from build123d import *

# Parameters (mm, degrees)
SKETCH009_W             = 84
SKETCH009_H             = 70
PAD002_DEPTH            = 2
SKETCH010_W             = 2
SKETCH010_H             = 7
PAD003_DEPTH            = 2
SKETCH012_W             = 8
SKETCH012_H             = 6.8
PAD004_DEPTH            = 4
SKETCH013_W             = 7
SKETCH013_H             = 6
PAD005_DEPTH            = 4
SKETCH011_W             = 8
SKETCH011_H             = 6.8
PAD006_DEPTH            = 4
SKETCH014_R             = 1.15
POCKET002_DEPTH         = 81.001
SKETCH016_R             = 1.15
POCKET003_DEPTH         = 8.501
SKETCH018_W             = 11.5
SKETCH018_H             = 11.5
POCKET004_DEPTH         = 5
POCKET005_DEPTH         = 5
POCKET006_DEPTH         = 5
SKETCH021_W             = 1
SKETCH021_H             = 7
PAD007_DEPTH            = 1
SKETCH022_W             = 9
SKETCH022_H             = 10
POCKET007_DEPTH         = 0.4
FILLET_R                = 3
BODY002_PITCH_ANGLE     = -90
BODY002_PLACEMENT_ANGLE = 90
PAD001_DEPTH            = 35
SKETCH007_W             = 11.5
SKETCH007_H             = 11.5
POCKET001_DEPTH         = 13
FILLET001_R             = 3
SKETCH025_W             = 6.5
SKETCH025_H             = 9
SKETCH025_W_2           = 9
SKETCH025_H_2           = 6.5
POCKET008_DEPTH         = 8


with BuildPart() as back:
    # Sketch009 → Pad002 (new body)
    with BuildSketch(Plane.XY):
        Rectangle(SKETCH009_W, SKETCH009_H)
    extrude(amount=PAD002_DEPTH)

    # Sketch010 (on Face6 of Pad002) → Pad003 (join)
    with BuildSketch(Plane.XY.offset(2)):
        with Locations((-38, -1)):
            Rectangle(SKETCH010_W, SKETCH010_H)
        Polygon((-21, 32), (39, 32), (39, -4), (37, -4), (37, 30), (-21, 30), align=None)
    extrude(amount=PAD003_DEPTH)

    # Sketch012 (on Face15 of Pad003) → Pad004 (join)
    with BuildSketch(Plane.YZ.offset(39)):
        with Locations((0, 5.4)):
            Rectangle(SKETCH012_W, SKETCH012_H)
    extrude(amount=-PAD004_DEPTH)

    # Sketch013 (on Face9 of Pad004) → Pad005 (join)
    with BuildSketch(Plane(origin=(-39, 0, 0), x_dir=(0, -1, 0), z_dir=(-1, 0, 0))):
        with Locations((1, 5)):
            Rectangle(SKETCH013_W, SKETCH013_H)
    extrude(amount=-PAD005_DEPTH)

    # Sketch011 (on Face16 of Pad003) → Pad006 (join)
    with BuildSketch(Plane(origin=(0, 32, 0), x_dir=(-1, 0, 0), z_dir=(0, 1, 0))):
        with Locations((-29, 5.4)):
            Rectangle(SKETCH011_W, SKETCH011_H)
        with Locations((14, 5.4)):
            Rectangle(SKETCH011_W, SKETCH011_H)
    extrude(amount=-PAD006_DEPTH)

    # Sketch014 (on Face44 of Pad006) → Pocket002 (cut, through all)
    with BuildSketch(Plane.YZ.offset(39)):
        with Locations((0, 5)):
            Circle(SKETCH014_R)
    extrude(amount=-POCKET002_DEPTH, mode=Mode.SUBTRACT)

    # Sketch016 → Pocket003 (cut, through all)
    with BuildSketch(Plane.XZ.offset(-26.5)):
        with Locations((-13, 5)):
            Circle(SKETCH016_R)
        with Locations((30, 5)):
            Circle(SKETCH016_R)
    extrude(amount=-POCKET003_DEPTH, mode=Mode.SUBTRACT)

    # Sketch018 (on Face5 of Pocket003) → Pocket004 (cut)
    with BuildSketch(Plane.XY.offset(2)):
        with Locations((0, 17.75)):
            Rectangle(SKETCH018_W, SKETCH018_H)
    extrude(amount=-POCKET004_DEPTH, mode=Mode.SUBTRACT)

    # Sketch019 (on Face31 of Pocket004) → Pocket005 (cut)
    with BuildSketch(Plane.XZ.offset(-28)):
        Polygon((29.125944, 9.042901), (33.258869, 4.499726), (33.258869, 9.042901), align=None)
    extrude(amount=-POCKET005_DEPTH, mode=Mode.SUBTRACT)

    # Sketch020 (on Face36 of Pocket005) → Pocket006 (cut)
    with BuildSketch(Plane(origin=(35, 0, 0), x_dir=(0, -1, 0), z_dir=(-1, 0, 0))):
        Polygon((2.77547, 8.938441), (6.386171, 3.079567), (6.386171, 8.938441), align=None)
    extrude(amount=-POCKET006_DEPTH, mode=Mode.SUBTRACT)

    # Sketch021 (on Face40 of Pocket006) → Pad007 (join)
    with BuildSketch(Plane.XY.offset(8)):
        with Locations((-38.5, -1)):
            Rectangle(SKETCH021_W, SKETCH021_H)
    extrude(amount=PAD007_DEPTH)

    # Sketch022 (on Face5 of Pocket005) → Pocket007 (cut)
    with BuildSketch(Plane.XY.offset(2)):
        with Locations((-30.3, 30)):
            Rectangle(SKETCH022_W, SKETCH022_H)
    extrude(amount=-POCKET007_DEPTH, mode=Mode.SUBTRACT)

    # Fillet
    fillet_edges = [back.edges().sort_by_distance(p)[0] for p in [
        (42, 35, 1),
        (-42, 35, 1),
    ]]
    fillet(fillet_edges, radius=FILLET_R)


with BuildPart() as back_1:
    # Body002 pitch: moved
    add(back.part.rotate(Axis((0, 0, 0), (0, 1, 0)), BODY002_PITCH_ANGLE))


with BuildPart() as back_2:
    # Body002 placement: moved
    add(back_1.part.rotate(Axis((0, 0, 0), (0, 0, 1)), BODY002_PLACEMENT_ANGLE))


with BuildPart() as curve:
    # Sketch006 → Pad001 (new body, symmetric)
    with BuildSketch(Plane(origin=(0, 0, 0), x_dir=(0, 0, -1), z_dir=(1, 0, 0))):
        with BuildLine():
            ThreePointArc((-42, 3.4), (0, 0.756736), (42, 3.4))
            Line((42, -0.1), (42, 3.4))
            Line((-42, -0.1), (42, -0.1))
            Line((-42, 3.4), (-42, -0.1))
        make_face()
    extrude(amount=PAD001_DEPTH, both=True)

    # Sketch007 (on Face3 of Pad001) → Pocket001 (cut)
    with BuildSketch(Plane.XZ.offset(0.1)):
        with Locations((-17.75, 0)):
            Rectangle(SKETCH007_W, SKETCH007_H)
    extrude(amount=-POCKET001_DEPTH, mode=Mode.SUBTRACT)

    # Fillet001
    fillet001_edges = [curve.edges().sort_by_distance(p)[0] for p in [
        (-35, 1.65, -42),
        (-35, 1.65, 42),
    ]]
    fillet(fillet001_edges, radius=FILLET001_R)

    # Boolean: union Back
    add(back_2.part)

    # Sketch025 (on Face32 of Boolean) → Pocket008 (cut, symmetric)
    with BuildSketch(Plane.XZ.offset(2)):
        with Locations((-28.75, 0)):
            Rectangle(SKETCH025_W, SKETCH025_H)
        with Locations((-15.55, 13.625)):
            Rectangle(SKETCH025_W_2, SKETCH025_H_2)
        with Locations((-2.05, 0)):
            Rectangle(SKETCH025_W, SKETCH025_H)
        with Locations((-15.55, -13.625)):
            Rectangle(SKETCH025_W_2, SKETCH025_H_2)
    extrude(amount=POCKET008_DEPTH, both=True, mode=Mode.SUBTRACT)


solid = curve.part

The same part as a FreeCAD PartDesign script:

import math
import FreeCAD as App
import Part
import Sketcher
from FreeCAD import Vector
Q = App.Units.Quantity


def edges_at(feature, points):
    """Names of the edges that pass closest to the given points."""
    edges = feature.Shape.Edges
    near = lambda p: min(range(len(edges)), key=lambda i: edges[i].distToShape(Part.Vertex(*p))[0])
    return sorted({f"Edge{near(p) + 1}" for p in points})


def add_polygon(sketch, points):
    """Adds a closed chain of lines whose ends are joined by coincident constraints."""
    first, n = sketch.GeometryCount, len(points)
    for a, b in zip(points, points[1:] + points[:1]):
        sketch.addGeometry(Part.LineSegment(App.Vector(*a, 0), App.Vector(*b, 0)), False)
    for i in range(n):
        sketch.addConstraint(Sketcher.Constraint("Coincident", first + i, 2, first + (i + 1) % n, 1))

doc = App.newDocument("Part")
body = doc.addObject("PartDesign::Body", "Body")

# Sketch on XY plane
sketch1 = body.newObject("Sketcher::SketchObject", "Sketch")
sketch1.AttachmentSupport = (doc.getObject("XY_Plane"), [""])
sketch1.MapMode = "FlatFace"
add_polygon(sketch1, [(-42, 35), (-42, -35), (42, -35), (42, 35)])  # lines 0-3
sketch1.addConstraint([
    Sketcher.Constraint("Vertical", 0),
    Sketcher.Constraint("Horizontal", 1),
    Sketcher.Constraint("Vertical", 2),
    Sketcher.Constraint("Horizontal", 3),
    Sketcher.Constraint("Symmetric", 0, 2, 2, 2, -1, 1),
    Sketcher.Constraint("DistanceX", 1, 1, 1, 2, Q("84 mm")),
    Sketcher.Constraint("DistanceY", 0, 2, 0, 1, Q("70 mm")),
])
pad1 = body.newObject("PartDesign::Pad", "Pad")
pad1.Profile = sketch1
pad1.Length = 2

# Sketch on XY plane
sketch2 = body.newObject("Sketcher::SketchObject", "Sketch001")
sketch2.AttachmentSupport = (doc.getObject("XY_Plane"), [""])
sketch2.MapMode = "FlatFace"
sketch2.AttachmentOffset = App.Placement(Vector(0, 0, 2), App.Rotation())
add_polygon(sketch2, [(-39, 2.5), (-39, -4.5), (-37, -4.5), (-37, 2.5)])  # lines 0-3
add_polygon(sketch2, [(39, 32), (-21, 32), (-21, 30), (37, 30), (37, -4), (39, -4)])  # lines 4-9
sketch2.addConstraint([
    Sketcher.Constraint("Vertical", 0),
    Sketcher.Constraint("Horizontal", 1),
    Sketcher.Constraint("Vertical", 2),
    Sketcher.Constraint("Horizontal", 3),
    Sketcher.Constraint("Horizontal", 4),
    Sketcher.Constraint("Vertical", 5),
    Sketcher.Constraint("Horizontal", 6),
    Sketcher.Constraint("Vertical", 7),
    Sketcher.Constraint("Horizontal", 8),
    Sketcher.Constraint("Vertical", 9),
    Sketcher.Constraint("Equal", 3, 8),
    Sketcher.Constraint("Equal", 8, 5),
    Sketcher.Constraint("DistanceX", 1, 1, 1, 2, Q("2 mm")),
    Sketcher.Constraint("DistanceX", 4, 2, 4, 1, Q("60 mm")),
    Sketcher.Constraint("DistanceY", 0, 2, 0, 1, Q("7 mm")),
    Sketcher.Constraint("DistanceY", 7, 2, 7, 1, Q("34 mm")),
    Sketcher.Constraint("DistanceX", 0, 2, -1, 1, Q("39 mm")),
    Sketcher.Constraint("DistanceX", 4, 2, -1, 1, Q("21 mm")),
    Sketcher.Constraint("DistanceY", -1, 1, 4, 2, Q("32 mm")),
    Sketcher.Constraint("DistanceY", 0, 2, -1, 1, Q("4.5 mm")),
])
pad2 = body.newObject("PartDesign::Pad", "Pad001")
pad2.Profile = sketch2
pad2.Length = 2

# Sketch on YZ plane
sketch3 = body.newObject("Sketcher::SketchObject", "Sketch002")
sketch3.AttachmentSupport = (doc.getObject("YZ_Plane"), [""])
sketch3.MapMode = "FlatFace"
sketch3.AttachmentOffset = App.Placement(Vector(0, 0, 39), App.Rotation())
add_polygon(sketch3, [(-4, 9), (-4, 2), (4, 2), (4, 9)])  # lines 0-3
sketch3.addConstraint([
    Sketcher.Constraint("Vertical", 0),
    Sketcher.Constraint("Horizontal", 1),
    Sketcher.Constraint("Vertical", 2),
    Sketcher.Constraint("Horizontal", 3),
    Sketcher.Constraint("DistanceX", 1, 1, 1, 2, Q("8 mm")),
    Sketcher.Constraint("DistanceY", 0, 2, 0, 1, Q("6.8 mm")),
    Sketcher.Constraint("DistanceX", 0, 2, -1, 1, Q("4 mm")),
    Sketcher.Constraint("DistanceY", -1, 1, 0, 2, Q("2 mm")),
])
pad3 = body.newObject("PartDesign::Pad", "Pad002")
pad3.Profile = sketch3
pad3.Length = 4
pad3.Reversed = True

# Sketch on YZ plane
sketch4 = body.newObject("Sketcher::SketchObject", "Sketch003")
sketch4.AttachmentSupport = (doc.getObject("YZ_Plane"), [""])
sketch4.MapMode = "FlatFace"
sketch4.AttachmentOffset = App.Placement(Vector(0, 0, -39), App.Rotation())
add_polygon(sketch4, [(2, 8), (2, 2), (-4, 2), (-4, 8)])  # lines 0-3
sketch4.addConstraint([
    Sketcher.Constraint("Vertical", 0),
    Sketcher.Constraint("Horizontal", 1),
    Sketcher.Constraint("Vertical", 2),
    Sketcher.Constraint("Horizontal", 3),
    Sketcher.Constraint("DistanceX", 1, 2, 1, 1, Q("7 mm")),
    Sketcher.Constraint("DistanceY", 0, 2, 0, 1, Q("6 mm")),
    Sketcher.Constraint("DistanceY", -1, 1, 0, 2, Q("2 mm")),
    Sketcher.Constraint("DistanceX", -1, 1, 0, 2, Q("2.5 mm")),
])
pad4 = body.newObject("PartDesign::Pad", "Pad003")
pad4.Profile = sketch4
pad4.Length = 4

# Sketch on XZ plane
sketch5 = body.newObject("Sketcher::SketchObject", "Sketch004")
sketch5.AttachmentSupport = (doc.getObject("XZ_Plane"), [""])
sketch5.MapMode = "FlatFace"
sketch5.AttachmentOffset = App.Placement(Vector(0, 0, -32), App.Rotation())
add_polygon(sketch5, [(33, 9), (33, 2), (25, 2), (25, 9)])  # lines 0-3
add_polygon(sketch5, [(-10, 9), (-10, 2), (-18, 2), (-18, 9)])  # lines 4-7
sketch5.addConstraint([
    Sketcher.Constraint("Vertical", 0),
    Sketcher.Constraint("Horizontal", 1),
    Sketcher.Constraint("Vertical", 2),
    Sketcher.Constraint("Horizontal", 3),
    Sketcher.Constraint("Vertical", 4),
    Sketcher.Constraint("Horizontal", 5),
    Sketcher.Constraint("Vertical", 6),
    Sketcher.Constraint("Horizontal", 7),
    Sketcher.Constraint("Horizontal", 1, 2, 4, 2),
    Sketcher.Constraint("Horizontal", 3, 2, 6, 2),
    Sketcher.Constraint("Equal", 3, 5),
    Sketcher.Constraint("DistanceX", 1, 2, 1, 1, Q("8 mm")),
    Sketcher.Constraint("DistanceY", 0, 2, 0, 1, Q("6.8 mm")),
    Sketcher.Constraint("DistanceX", -1, 1, 0, 2, Q("33 mm")),
    Sketcher.Constraint("DistanceY", -1, 1, 0, 2, Q("2 mm")),
    Sketcher.Constraint("DistanceX", 4, 2, -1, 1, Q("10 mm")),
])
pad5 = body.newObject("PartDesign::Pad", "Pad004")
pad5.Profile = sketch5
pad5.Length = 4

# Sketch on YZ plane
sketch6 = body.newObject("Sketcher::SketchObject", "Sketch005")
sketch6.AttachmentSupport = (doc.getObject("YZ_Plane"), [""])
sketch6.MapMode = "FlatFace"
sketch6.AttachmentOffset = App.Placement(Vector(0, 0, 39), App.Rotation())
sketch6.addGeometry(Part.Circle(Vector(0, 5, 0), Vector(0, 0, 1), 1.1), False)
sketch6.addConstraint([
    Sketcher.Constraint("PointOnObject", 0, 3, -2),
    Sketcher.Constraint("Diameter", 0, Q("2.3 mm")),
    Sketcher.Constraint("DistanceY", -1, 1, 0, 3, Q("5 mm")),
])
pocket1 = body.newObject("PartDesign::Pocket", "Pocket")
pocket1.Profile = sketch6
pocket1.Type = "ThroughAll"

# Sketch on XZ plane
sketch7 = body.newObject("Sketcher::SketchObject", "Sketch006")
sketch7.AttachmentSupport = (doc.getObject("XZ_Plane"), [""])
sketch7.MapMode = "FlatFace"
sketch7.AttachmentOffset = App.Placement(Vector(0, 0, -26.5), App.Rotation())
sketch7.addGeometry([
    Part.Circle(Vector(-13, 5, 0), Vector(0, 0, 1), 1.1),
    Part.Circle(Vector(30, 5, 0), Vector(0, 0, 1), 1.1),
], False)
sketch7.addConstraint([
    Sketcher.Constraint("Equal", 0, 1),
    Sketcher.Constraint("Horizontal", 0, 3, 1, 3),
    Sketcher.Constraint("Diameter", 0, Q("2.3 mm")),
    Sketcher.Constraint("DistanceX", 0, 3, -1, 1, Q("13 mm")),
    Sketcher.Constraint("DistanceY", -1, 1, 0, 3, Q("5 mm")),
    Sketcher.Constraint("DistanceX", -1, 1, 1, 3, Q("30 mm")),
])
pocket2 = body.newObject("PartDesign::Pocket", "Pocket001")
pocket2.Profile = sketch7
pocket2.Type = "ThroughAll"

# Sketch on XY plane
sketch8 = body.newObject("Sketcher::SketchObject", "Sketch007")
sketch8.AttachmentSupport = (doc.getObject("XY_Plane"), [""])
sketch8.MapMode = "FlatFace"
sketch8.AttachmentOffset = App.Placement(Vector(0, 0, 2), App.Rotation())
add_polygon(sketch8, [(-6, 24), (-6, 12), (6, 12), (6, 24)])  # lines 0-3
sketch8.addConstraint([
    Sketcher.Constraint("Vertical", 0),
    Sketcher.Constraint("Horizontal", 1),
    Sketcher.Constraint("Vertical", 2),
    Sketcher.Constraint("Horizontal", 3),
    Sketcher.Constraint("Equal", 3, 0),
    Sketcher.Constraint("DistanceX", 1, 1, 1, 2, Q("11.5 mm")),
    Sketcher.Constraint("DistanceY", -1, 1, 0, 2, Q("12 mm")),
    Sketcher.Constraint("DistanceX", 0, 2, -1, 1, Q("5.75 mm")),
])
pocket3 = body.newObject("PartDesign::Pocket", "Pocket002")
pocket3.Profile = sketch8
pocket3.Length = 5

# Sketch on XZ plane
sketch9 = body.newObject("Sketcher::SketchObject", "Sketch008")
sketch9.AttachmentSupport = (doc.getObject("XZ_Plane"), [""])
sketch9.MapMode = "FlatFace"
sketch9.AttachmentOffset = App.Placement(Vector(0, 0, -28), App.Rotation())
add_polygon(sketch9, [(29.1, 9), (33.3, 4.5), (33.3, 9)])  # lines 0-2
sketch9.addConstraint([
    Sketcher.Constraint("Vertical", 1),
    Sketcher.Constraint("Horizontal", 2),
    Sketcher.Constraint("DistanceY", -1, 1, 1, 2, Q("9.042901 mm")),
    Sketcher.Constraint("DistanceX", 2, 2, 2, 1, Q("4.132925 mm")),
    Sketcher.Constraint("DistanceY", 1, 1, 1, 2, Q("4.543175 mm")),
    Sketcher.Constraint("DistanceX", -1, 1, 0, 2, Q("33.258869 mm")),
])
pocket4 = body.newObject("PartDesign::Pocket", "Pocket003")
pocket4.Profile = sketch9
pocket4.Length = 5

# Sketch on YZ plane
sketch10 = body.newObject("Sketcher::SketchObject", "Sketch009")
sketch10.AttachmentSupport = (doc.getObject("YZ_Plane"), [""])
sketch10.MapMode = "FlatFace"
sketch10.AttachmentOffset = App.Placement(Vector(0, 0, 35), App.Rotation())
add_polygon(sketch10, [(-2.8, 8.9), (-6.4, 3.1), (-6.4, 8.9)])  # lines 0-2
sketch10.addConstraint([
    Sketcher.Constraint("Vertical", 1),
    Sketcher.Constraint("Horizontal", 2),
    Sketcher.Constraint("DistanceX", 2, 1, 2, 2, Q("3.610701 mm")),
    Sketcher.Constraint("Distance", 0, Q("6.882119 mm")),
    Sketcher.Constraint("DistanceX", 0, 2, -1, 1, Q("6.386171 mm")),
    Sketcher.Constraint("DistanceY", -1, 1, 1, 2, Q("8.938441 mm")),
])
pocket5 = body.newObject("PartDesign::Pocket", "Pocket004")
pocket5.Profile = sketch10
pocket5.Length = 5
pocket5.Reversed = True

# Sketch on XY plane
sketch11 = body.newObject("Sketcher::SketchObject", "Sketch010")
sketch11.AttachmentSupport = (doc.getObject("XY_Plane"), [""])
sketch11.MapMode = "FlatFace"
sketch11.AttachmentOffset = App.Placement(Vector(0, 0, 8), App.Rotation())
add_polygon(sketch11, [(-39, 2.5), (-39, -4.5), (-38, -4.5), (-38, 2.5)])  # lines 0-3
sketch11.addConstraint([
    Sketcher.Constraint("Vertical", 0),
    Sketcher.Constraint("Horizontal", 1),
    Sketcher.Constraint("Vertical", 2),
    Sketcher.Constraint("Horizontal", 3),
    Sketcher.Constraint("DistanceX", 1, 1, 1, 2, Q("1 mm")),
    Sketcher.Constraint("DistanceY", 0, 2, 0, 1, Q("7 mm")),
    Sketcher.Constraint("DistanceX", 0, 2, -1, 1, Q("39 mm")),
    Sketcher.Constraint("DistanceY", 0, 2, -1, 1, Q("4.5 mm")),
])
pad6 = body.newObject("PartDesign::Pad", "Pad005")
pad6.Profile = sketch11
pad6.Length = 1

# Sketch on XY plane
sketch12 = body.newObject("Sketcher::SketchObject", "Sketch011")
sketch12.AttachmentSupport = (doc.getObject("XY_Plane"), [""])
sketch12.MapMode = "FlatFace"
sketch12.AttachmentOffset = App.Placement(Vector(0, 0, 2), App.Rotation())
add_polygon(sketch12, [(-35, 35), (-35, 25), (-26, 25), (-26, 35)])  # lines 0-3
sketch12.addConstraint([
    Sketcher.Constraint("Vertical", 0),
    Sketcher.Constraint("Horizontal", 1),
    Sketcher.Constraint("Vertical", 2),
    Sketcher.Constraint("Horizontal", 3),
    Sketcher.Constraint("DistanceX", 1, 1, 1, 2, Q("9 mm")),
    Sketcher.Constraint("DistanceY", 0, 2, 0, 1, Q("10 mm")),
    Sketcher.Constraint("DistanceY", -1, 1, 0, 2, Q("25 mm")),
    Sketcher.Constraint("DistanceX", 0, 2, -1, 1, Q("34.8 mm")),
])
pocket6 = body.newObject("PartDesign::Pocket", "Pocket005")
pocket6.Profile = sketch12
pocket6.Length = 0.4
doc.recompute()

fillet = body.newObject("PartDesign::Fillet", "Fillet")
fillet.Base = (pocket6, edges_at(pocket6, [(42, 35, 1), (-42, 35, 1)]))
fillet.Radius = 3
body2 = doc.addObject("PartDesign::Body", "Body001")
doc.recompute()

body.Placement = App.Placement(Vector(0, 0, 0), App.Rotation(Vector(0, 1, 0), 270))
boolean = body2.newObject("PartDesign::Boolean", "Boolean")
boolean.Type = "Fuse"
boolean.addObjects([body])
body3 = doc.addObject("PartDesign::Body", "Body002")
doc.recompute()

body2.Placement = App.Placement(Vector(0, 0, 0), App.Rotation(Vector(0, 0, 1), 90))
boolean2 = body3.newObject("PartDesign::Boolean", "Boolean001")
boolean2.Type = "Fuse"
boolean2.addObjects([body2])
body4 = doc.addObject("PartDesign::Body", "Body003")

# Sketch on YZ plane
sketch13 = body4.newObject("Sketcher::SketchObject", "Sketch012")
sketch13.AttachmentSupport = (doc.getObject("YZ_Plane003"), [""])
sketch13.MapMode = "FlatFace"
sketch13.addGeometry([
    Part.ArcOfCircle(Part.Circle(Vector(335.8, 0, 0), Vector(0, 0, 1), 335), math.radians(172.8), math.radians(187.2)),
    Part.LineSegment(Vector(3.4, 42, 0), Vector(-0.1, 42, 0)),
    Part.LineSegment(Vector(-0.1, 42, 0), Vector(-0.1, -42, 0)),
    Part.LineSegment(Vector(-0.1, -42, 0), Vector(3.4, -42, 0)),
], False)
sketch13.addConstraint([
    Sketcher.Constraint("Coincident", 0, 1, 1, 1),
    Sketcher.Constraint("Coincident", 1, 2, 2, 1),
    Sketcher.Constraint("Coincident", 2, 2, 3, 1),
    Sketcher.Constraint("Coincident", 3, 2, 0, 2),
    Sketcher.Constraint("Horizontal", 1),
    Sketcher.Constraint("Vertical", 2),
    Sketcher.Constraint("Horizontal", 3),
    Sketcher.Constraint("Symmetric", 0, 1, 3, 2, -1),
    Sketcher.Constraint("DistanceY", 2, 2, 2, 1, Q("84 mm")),
    Sketcher.Constraint("DistanceX", 1, 2, 1, 1, Q("3.5 mm")),
    Sketcher.Constraint("DistanceX", -1, 1, 0, 1, Q("3.4 mm")),
    Sketcher.Constraint("Radius", 0, Q("334.999993 mm")),
])
pad7 = body4.newObject("PartDesign::Pad", "Pad006")
pad7.Profile = sketch13
pad7.Length = 70
pad7.Midplane = True

# Sketch on XZ plane
sketch14 = body4.newObject("Sketcher::SketchObject", "Sketch013")
sketch14.AttachmentSupport = (doc.getObject("XZ_Plane003"), [""])
sketch14.MapMode = "FlatFace"
sketch14.AttachmentOffset = App.Placement(Vector(0, 0, 0.1), App.Rotation())
add_polygon(sketch14, [(-24, 6), (-24, -6), (-12, -6), (-12, 6)])  # lines 0-3
sketch14.addConstraint([
    Sketcher.Constraint("Vertical", 0),
    Sketcher.Constraint("Horizontal", 1),
    Sketcher.Constraint("Vertical", 2),
    Sketcher.Constraint("Horizontal", 3),
    Sketcher.Constraint("Equal", 3, 0),
    Sketcher.Constraint("DistanceX", 1, 1, 1, 2, Q("11.5 mm")),
    Sketcher.Constraint("DistanceX", 1, 2, -1, 1, Q("12 mm")),
    Sketcher.Constraint("DistanceY", 0, 2, -1, 1, Q("5.75 mm")),
])
pocket7 = body4.newObject("PartDesign::Pocket", "Pocket006")
pocket7.Profile = sketch14
pocket7.Length = 13
doc.recompute()

fillet2 = body4.newObject("PartDesign::Fillet", "Fillet001")
fillet2.Base = (pocket7, edges_at(pocket7, [(-35, 1.65, -42), (-35, 1.65, 42)]))
fillet2.Radius = 3
doc.recompute()

boolean3 = body4.newObject("PartDesign::Boolean", "Boolean002")
boolean3.Type = "Fuse"
boolean3.addObjects([body3])

# Sketch on XZ plane
sketch15 = body4.newObject("Sketcher::SketchObject", "Sketch014")
sketch15.AttachmentSupport = (doc.getObject("XZ_Plane003"), [""])
sketch15.MapMode = "FlatFace"
sketch15.AttachmentOffset = App.Placement(Vector(0, 0, 2), App.Rotation())
add_polygon(sketch15, [(-32, 4), (-32, -4), (-26, -4), (-26, 4)])  # lines 0-3
add_polygon(sketch15, [(-20, 17), (-20, 10), (-11, 10), (-11, 17)])  # lines 4-7
add_polygon(sketch15, [(-5, 4), (-5, -4), (1, -4), (1, 4)])  # lines 8-11
add_polygon(sketch15, [(-20, -10), (-20, -17), (-11, -17), (-11, -10)])  # lines 12-15
sketch15.addConstraint([
    Sketcher.Constraint("Vertical", 0),
    Sketcher.Constraint("Horizontal", 1),
    Sketcher.Constraint("Vertical", 2),
    Sketcher.Constraint("Horizontal", 3),
    Sketcher.Constraint("Vertical", 4),
    Sketcher.Constraint("Horizontal", 5),
    Sketcher.Constraint("Vertical", 6),
    Sketcher.Constraint("Horizontal", 7),
    Sketcher.Constraint("Vertical", 8),
    Sketcher.Constraint("Horizontal", 9),
    Sketcher.Constraint("Vertical", 10),
    Sketcher.Constraint("Horizontal", 11),
    Sketcher.Constraint("Vertical", 12),
    Sketcher.Constraint("Horizontal", 13),
    Sketcher.Constraint("Vertical", 14),
    Sketcher.Constraint("Horizontal", 15),
    Sketcher.Constraint("Symmetric", 7, 2, 12, 2, -1),
    Sketcher.Constraint("Symmetric", 5, 2, 14, 2, -1),
    Sketcher.Constraint("Horizontal", 1, 2, 8, 2),
    Sketcher.Constraint("Horizontal", 3, 2, 10, 2),
    Sketcher.Constraint("Equal", 3, 9),
    Sketcher.Constraint("Equal", 15, 0),
    Sketcher.Constraint("Equal", 11, 4),
    Sketcher.Constraint("DistanceX", 5, 1, 5, 2, Q("9 mm")),
    Sketcher.Constraint("DistanceX", 1, 1, 1, 2, Q("6.5 mm")),
    Sketcher.Constraint("DistanceX", 0, 2, -1, 1, Q("32 mm")),
    Sketcher.Constraint("DistanceY", 0, 2, -1, 1, Q("4.5 mm")),
    Sketcher.Constraint("DistanceX", 8, 2, -1, 1, Q("5.3 mm")),
    Sketcher.Constraint("DistanceX", 4, 2, -1, 1, Q("20.05 mm")),
    Sketcher.Constraint("DistanceY", -1, 1, 4, 2, Q("10.375 mm")),
])
pocket8 = body4.newObject("PartDesign::Pocket", "Pocket007")
pocket8.Profile = sketch15
pocket8.Length = 16
pocket8.Midplane = True

doc.recompute()
